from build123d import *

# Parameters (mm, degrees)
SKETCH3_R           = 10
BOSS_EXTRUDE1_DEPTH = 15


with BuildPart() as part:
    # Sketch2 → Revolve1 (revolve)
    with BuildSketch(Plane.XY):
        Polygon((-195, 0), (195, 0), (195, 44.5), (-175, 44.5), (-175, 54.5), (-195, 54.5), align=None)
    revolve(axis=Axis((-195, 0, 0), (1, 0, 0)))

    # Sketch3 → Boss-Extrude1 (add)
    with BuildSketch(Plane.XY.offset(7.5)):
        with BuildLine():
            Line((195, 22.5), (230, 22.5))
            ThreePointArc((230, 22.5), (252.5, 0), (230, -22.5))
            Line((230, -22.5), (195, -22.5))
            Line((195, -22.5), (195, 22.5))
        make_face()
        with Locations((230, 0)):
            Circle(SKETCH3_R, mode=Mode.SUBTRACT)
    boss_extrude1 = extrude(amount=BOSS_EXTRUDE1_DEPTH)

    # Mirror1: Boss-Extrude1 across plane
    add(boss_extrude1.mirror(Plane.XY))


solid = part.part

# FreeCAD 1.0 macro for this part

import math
import FreeCAD as App
import Part
import Sketcher
from FreeCAD import Vector
Q = App.Units.Quantity

doc = App.newDocument("Part")
body = doc.addObject("PartDesign::Body", "Body")

# Sketch on XY plane
sketch1 = doc.addObject("Sketcher::SketchObject", "Sketch")
body.addObject(sketch1)
sketch1.AttachmentSupport = (doc.XY_Plane, [""])
sketch1.MapMode = "FlatFace"
sketch1.addGeometry(Part.LineSegment(Vector(-195, 0, 0), Vector(195, 0, 0)), False)
sketch1.addGeometry(Part.LineSegment(Vector(195, 0, 0), Vector(195, 44, 0)), False)
sketch1.addGeometry(Part.LineSegment(Vector(195, 44, 0), Vector(-175, 44, 0)), False)
sketch1.addGeometry(Part.LineSegment(Vector(-175, 44, 0), Vector(-175, 54, 0)), False)
sketch1.addGeometry(Part.LineSegment(Vector(-175, 54, 0), Vector(-195, 54, 0)), False)
sketch1.addGeometry(Part.LineSegment(Vector(-195, 54, 0), Vector(-195, 0, 0)), False)
sketch1.addConstraint(Sketcher.Constraint("Coincident", 0, 2, 1, 1))
sketch1.addConstraint(Sketcher.Constraint("Coincident", 1, 2, 2, 1))
sketch1.addConstraint(Sketcher.Constraint("Coincident", 2, 2, 3, 1))
sketch1.addConstraint(Sketcher.Constraint("Coincident", 3, 2, 4, 1))
sketch1.addConstraint(Sketcher.Constraint("Coincident", 4, 2, 5, 1))
sketch1.addConstraint(Sketcher.Constraint("Coincident", 5, 2, 0, 1))
sketch1.addConstraint(Sketcher.Constraint("Horizontal", 0))
sketch1.addConstraint(Sketcher.Constraint("Vertical", 1))
sketch1.addConstraint(Sketcher.Constraint("Horizontal", 2))
sketch1.addConstraint(Sketcher.Constraint("Vertical", 3))
sketch1.addConstraint(Sketcher.Constraint("Horizontal", 4))
sketch1.addConstraint(Sketcher.Constraint("Vertical", 5))
sketch1.addConstraint(Sketcher.Constraint("Symmetric", 0, 2, 5, 2, -1, 1))
sketch1.addConstraint(Sketcher.Constraint("DistanceX", 0, 1, 0, 2, Q("390 mm")))
sketch1.addConstraint(Sketcher.Constraint("DistanceX", 2, 2, 2, 1, Q("370 mm")))
sketch1.addConstraint(Sketcher.Constraint("DistanceY", 3, 1, 3, 2, Q("10 mm")))
sketch1.addConstraint(Sketcher.Constraint("DistanceY", 1, 1, 1, 2, Q("44.5 mm")))
revolution = doc.addObject("PartDesign::Revolution", "Revolution")
body.addObject(revolution)
revolution.Profile = sketch1
revolution.ReferenceAxis = (sketch1, ["H_Axis"])
revolution.Angle = 360

# Sketch on XY plane
sketch2 = doc.addObject("Sketcher::SketchObject", "Sketch001")
body.addObject(sketch2)
sketch2.AttachmentSupport = (doc.XY_Plane, [""])
sketch2.MapMode = "FlatFace"
sketch2.AttachmentOffset = App.Placement(Vector(0, 0, 7.5), App.Rotation())
sketch2.addGeometry(Part.LineSegment(Vector(230, 22, 0), Vector(195, 22, 0)), False)
sketch2.addGeometry(Part.LineSegment(Vector(195, 22, 0), Vector(195, -22, 0)), False)
sketch2.addGeometry(Part.LineSegment(Vector(195, -22, 0), Vector(230, -22, 0)), False)
sketch2.addGeometry(Part.ArcOfCircle(Part.Circle(Vector(230, 0, 0), Vector(0, 0, 1), 22), math.radians(-90), math.radians(90)), False)
sketch2.addGeometry(Part.Circle(Vector(230, 0, 0), Vector(0, 0, 1), 10), False)
sketch2.addConstraint(Sketcher.Constraint("Coincident", 0, 2, 1, 1))
sketch2.addConstraint(Sketcher.Constraint("Coincident", 1, 2, 2, 1))
sketch2.addConstraint(Sketcher.Constraint("Tangent", 2, 2, 3, 1))
sketch2.addConstraint(Sketcher.Constraint("Tangent", 3, 2, 0, 1))
sketch2.addConstraint(Sketcher.Constraint("Horizontal", 0))
sketch2.addConstraint(Sketcher.Constraint("Vertical", 1))
sketch2.addConstraint(Sketcher.Constraint("Horizontal", 2))
sketch2.addConstraint(Sketcher.Constraint("Coincident", 4, 3, 3, 3))
sketch2.addConstraint(Sketcher.Constraint("PointOnObject", 3, 3, -1))
sketch2.addConstraint(Sketcher.Constraint("Diameter", 4, Q("20 mm")))
sketch2.addConstraint(Sketcher.Constraint("Radius", 3, Q("22.5 mm")))
sketch2.addConstraint(Sketcher.Constraint("DistanceX", 0, 2, 0, 1, Q("35 mm")))
sketch2.addConstraint(Sketcher.Constraint("DistanceX", -1, 1, 3, 3, Q("230 mm")))
pad1 = doc.addObject("PartDesign::Pad", "Pad")
body.addObject(pad1)
pad1.Profile = sketch2
pad1.Length = 15
doc.recompute()

mirrored = doc.addObject("PartDesign::Mirrored", "Mirrored")
body.addObject(mirrored)
mirrored.Originals = [pad1]
mirrored.MirrorPlane = (doc.XY_Plane, [""])
body.Tip = mirrored

doc.recompute()
